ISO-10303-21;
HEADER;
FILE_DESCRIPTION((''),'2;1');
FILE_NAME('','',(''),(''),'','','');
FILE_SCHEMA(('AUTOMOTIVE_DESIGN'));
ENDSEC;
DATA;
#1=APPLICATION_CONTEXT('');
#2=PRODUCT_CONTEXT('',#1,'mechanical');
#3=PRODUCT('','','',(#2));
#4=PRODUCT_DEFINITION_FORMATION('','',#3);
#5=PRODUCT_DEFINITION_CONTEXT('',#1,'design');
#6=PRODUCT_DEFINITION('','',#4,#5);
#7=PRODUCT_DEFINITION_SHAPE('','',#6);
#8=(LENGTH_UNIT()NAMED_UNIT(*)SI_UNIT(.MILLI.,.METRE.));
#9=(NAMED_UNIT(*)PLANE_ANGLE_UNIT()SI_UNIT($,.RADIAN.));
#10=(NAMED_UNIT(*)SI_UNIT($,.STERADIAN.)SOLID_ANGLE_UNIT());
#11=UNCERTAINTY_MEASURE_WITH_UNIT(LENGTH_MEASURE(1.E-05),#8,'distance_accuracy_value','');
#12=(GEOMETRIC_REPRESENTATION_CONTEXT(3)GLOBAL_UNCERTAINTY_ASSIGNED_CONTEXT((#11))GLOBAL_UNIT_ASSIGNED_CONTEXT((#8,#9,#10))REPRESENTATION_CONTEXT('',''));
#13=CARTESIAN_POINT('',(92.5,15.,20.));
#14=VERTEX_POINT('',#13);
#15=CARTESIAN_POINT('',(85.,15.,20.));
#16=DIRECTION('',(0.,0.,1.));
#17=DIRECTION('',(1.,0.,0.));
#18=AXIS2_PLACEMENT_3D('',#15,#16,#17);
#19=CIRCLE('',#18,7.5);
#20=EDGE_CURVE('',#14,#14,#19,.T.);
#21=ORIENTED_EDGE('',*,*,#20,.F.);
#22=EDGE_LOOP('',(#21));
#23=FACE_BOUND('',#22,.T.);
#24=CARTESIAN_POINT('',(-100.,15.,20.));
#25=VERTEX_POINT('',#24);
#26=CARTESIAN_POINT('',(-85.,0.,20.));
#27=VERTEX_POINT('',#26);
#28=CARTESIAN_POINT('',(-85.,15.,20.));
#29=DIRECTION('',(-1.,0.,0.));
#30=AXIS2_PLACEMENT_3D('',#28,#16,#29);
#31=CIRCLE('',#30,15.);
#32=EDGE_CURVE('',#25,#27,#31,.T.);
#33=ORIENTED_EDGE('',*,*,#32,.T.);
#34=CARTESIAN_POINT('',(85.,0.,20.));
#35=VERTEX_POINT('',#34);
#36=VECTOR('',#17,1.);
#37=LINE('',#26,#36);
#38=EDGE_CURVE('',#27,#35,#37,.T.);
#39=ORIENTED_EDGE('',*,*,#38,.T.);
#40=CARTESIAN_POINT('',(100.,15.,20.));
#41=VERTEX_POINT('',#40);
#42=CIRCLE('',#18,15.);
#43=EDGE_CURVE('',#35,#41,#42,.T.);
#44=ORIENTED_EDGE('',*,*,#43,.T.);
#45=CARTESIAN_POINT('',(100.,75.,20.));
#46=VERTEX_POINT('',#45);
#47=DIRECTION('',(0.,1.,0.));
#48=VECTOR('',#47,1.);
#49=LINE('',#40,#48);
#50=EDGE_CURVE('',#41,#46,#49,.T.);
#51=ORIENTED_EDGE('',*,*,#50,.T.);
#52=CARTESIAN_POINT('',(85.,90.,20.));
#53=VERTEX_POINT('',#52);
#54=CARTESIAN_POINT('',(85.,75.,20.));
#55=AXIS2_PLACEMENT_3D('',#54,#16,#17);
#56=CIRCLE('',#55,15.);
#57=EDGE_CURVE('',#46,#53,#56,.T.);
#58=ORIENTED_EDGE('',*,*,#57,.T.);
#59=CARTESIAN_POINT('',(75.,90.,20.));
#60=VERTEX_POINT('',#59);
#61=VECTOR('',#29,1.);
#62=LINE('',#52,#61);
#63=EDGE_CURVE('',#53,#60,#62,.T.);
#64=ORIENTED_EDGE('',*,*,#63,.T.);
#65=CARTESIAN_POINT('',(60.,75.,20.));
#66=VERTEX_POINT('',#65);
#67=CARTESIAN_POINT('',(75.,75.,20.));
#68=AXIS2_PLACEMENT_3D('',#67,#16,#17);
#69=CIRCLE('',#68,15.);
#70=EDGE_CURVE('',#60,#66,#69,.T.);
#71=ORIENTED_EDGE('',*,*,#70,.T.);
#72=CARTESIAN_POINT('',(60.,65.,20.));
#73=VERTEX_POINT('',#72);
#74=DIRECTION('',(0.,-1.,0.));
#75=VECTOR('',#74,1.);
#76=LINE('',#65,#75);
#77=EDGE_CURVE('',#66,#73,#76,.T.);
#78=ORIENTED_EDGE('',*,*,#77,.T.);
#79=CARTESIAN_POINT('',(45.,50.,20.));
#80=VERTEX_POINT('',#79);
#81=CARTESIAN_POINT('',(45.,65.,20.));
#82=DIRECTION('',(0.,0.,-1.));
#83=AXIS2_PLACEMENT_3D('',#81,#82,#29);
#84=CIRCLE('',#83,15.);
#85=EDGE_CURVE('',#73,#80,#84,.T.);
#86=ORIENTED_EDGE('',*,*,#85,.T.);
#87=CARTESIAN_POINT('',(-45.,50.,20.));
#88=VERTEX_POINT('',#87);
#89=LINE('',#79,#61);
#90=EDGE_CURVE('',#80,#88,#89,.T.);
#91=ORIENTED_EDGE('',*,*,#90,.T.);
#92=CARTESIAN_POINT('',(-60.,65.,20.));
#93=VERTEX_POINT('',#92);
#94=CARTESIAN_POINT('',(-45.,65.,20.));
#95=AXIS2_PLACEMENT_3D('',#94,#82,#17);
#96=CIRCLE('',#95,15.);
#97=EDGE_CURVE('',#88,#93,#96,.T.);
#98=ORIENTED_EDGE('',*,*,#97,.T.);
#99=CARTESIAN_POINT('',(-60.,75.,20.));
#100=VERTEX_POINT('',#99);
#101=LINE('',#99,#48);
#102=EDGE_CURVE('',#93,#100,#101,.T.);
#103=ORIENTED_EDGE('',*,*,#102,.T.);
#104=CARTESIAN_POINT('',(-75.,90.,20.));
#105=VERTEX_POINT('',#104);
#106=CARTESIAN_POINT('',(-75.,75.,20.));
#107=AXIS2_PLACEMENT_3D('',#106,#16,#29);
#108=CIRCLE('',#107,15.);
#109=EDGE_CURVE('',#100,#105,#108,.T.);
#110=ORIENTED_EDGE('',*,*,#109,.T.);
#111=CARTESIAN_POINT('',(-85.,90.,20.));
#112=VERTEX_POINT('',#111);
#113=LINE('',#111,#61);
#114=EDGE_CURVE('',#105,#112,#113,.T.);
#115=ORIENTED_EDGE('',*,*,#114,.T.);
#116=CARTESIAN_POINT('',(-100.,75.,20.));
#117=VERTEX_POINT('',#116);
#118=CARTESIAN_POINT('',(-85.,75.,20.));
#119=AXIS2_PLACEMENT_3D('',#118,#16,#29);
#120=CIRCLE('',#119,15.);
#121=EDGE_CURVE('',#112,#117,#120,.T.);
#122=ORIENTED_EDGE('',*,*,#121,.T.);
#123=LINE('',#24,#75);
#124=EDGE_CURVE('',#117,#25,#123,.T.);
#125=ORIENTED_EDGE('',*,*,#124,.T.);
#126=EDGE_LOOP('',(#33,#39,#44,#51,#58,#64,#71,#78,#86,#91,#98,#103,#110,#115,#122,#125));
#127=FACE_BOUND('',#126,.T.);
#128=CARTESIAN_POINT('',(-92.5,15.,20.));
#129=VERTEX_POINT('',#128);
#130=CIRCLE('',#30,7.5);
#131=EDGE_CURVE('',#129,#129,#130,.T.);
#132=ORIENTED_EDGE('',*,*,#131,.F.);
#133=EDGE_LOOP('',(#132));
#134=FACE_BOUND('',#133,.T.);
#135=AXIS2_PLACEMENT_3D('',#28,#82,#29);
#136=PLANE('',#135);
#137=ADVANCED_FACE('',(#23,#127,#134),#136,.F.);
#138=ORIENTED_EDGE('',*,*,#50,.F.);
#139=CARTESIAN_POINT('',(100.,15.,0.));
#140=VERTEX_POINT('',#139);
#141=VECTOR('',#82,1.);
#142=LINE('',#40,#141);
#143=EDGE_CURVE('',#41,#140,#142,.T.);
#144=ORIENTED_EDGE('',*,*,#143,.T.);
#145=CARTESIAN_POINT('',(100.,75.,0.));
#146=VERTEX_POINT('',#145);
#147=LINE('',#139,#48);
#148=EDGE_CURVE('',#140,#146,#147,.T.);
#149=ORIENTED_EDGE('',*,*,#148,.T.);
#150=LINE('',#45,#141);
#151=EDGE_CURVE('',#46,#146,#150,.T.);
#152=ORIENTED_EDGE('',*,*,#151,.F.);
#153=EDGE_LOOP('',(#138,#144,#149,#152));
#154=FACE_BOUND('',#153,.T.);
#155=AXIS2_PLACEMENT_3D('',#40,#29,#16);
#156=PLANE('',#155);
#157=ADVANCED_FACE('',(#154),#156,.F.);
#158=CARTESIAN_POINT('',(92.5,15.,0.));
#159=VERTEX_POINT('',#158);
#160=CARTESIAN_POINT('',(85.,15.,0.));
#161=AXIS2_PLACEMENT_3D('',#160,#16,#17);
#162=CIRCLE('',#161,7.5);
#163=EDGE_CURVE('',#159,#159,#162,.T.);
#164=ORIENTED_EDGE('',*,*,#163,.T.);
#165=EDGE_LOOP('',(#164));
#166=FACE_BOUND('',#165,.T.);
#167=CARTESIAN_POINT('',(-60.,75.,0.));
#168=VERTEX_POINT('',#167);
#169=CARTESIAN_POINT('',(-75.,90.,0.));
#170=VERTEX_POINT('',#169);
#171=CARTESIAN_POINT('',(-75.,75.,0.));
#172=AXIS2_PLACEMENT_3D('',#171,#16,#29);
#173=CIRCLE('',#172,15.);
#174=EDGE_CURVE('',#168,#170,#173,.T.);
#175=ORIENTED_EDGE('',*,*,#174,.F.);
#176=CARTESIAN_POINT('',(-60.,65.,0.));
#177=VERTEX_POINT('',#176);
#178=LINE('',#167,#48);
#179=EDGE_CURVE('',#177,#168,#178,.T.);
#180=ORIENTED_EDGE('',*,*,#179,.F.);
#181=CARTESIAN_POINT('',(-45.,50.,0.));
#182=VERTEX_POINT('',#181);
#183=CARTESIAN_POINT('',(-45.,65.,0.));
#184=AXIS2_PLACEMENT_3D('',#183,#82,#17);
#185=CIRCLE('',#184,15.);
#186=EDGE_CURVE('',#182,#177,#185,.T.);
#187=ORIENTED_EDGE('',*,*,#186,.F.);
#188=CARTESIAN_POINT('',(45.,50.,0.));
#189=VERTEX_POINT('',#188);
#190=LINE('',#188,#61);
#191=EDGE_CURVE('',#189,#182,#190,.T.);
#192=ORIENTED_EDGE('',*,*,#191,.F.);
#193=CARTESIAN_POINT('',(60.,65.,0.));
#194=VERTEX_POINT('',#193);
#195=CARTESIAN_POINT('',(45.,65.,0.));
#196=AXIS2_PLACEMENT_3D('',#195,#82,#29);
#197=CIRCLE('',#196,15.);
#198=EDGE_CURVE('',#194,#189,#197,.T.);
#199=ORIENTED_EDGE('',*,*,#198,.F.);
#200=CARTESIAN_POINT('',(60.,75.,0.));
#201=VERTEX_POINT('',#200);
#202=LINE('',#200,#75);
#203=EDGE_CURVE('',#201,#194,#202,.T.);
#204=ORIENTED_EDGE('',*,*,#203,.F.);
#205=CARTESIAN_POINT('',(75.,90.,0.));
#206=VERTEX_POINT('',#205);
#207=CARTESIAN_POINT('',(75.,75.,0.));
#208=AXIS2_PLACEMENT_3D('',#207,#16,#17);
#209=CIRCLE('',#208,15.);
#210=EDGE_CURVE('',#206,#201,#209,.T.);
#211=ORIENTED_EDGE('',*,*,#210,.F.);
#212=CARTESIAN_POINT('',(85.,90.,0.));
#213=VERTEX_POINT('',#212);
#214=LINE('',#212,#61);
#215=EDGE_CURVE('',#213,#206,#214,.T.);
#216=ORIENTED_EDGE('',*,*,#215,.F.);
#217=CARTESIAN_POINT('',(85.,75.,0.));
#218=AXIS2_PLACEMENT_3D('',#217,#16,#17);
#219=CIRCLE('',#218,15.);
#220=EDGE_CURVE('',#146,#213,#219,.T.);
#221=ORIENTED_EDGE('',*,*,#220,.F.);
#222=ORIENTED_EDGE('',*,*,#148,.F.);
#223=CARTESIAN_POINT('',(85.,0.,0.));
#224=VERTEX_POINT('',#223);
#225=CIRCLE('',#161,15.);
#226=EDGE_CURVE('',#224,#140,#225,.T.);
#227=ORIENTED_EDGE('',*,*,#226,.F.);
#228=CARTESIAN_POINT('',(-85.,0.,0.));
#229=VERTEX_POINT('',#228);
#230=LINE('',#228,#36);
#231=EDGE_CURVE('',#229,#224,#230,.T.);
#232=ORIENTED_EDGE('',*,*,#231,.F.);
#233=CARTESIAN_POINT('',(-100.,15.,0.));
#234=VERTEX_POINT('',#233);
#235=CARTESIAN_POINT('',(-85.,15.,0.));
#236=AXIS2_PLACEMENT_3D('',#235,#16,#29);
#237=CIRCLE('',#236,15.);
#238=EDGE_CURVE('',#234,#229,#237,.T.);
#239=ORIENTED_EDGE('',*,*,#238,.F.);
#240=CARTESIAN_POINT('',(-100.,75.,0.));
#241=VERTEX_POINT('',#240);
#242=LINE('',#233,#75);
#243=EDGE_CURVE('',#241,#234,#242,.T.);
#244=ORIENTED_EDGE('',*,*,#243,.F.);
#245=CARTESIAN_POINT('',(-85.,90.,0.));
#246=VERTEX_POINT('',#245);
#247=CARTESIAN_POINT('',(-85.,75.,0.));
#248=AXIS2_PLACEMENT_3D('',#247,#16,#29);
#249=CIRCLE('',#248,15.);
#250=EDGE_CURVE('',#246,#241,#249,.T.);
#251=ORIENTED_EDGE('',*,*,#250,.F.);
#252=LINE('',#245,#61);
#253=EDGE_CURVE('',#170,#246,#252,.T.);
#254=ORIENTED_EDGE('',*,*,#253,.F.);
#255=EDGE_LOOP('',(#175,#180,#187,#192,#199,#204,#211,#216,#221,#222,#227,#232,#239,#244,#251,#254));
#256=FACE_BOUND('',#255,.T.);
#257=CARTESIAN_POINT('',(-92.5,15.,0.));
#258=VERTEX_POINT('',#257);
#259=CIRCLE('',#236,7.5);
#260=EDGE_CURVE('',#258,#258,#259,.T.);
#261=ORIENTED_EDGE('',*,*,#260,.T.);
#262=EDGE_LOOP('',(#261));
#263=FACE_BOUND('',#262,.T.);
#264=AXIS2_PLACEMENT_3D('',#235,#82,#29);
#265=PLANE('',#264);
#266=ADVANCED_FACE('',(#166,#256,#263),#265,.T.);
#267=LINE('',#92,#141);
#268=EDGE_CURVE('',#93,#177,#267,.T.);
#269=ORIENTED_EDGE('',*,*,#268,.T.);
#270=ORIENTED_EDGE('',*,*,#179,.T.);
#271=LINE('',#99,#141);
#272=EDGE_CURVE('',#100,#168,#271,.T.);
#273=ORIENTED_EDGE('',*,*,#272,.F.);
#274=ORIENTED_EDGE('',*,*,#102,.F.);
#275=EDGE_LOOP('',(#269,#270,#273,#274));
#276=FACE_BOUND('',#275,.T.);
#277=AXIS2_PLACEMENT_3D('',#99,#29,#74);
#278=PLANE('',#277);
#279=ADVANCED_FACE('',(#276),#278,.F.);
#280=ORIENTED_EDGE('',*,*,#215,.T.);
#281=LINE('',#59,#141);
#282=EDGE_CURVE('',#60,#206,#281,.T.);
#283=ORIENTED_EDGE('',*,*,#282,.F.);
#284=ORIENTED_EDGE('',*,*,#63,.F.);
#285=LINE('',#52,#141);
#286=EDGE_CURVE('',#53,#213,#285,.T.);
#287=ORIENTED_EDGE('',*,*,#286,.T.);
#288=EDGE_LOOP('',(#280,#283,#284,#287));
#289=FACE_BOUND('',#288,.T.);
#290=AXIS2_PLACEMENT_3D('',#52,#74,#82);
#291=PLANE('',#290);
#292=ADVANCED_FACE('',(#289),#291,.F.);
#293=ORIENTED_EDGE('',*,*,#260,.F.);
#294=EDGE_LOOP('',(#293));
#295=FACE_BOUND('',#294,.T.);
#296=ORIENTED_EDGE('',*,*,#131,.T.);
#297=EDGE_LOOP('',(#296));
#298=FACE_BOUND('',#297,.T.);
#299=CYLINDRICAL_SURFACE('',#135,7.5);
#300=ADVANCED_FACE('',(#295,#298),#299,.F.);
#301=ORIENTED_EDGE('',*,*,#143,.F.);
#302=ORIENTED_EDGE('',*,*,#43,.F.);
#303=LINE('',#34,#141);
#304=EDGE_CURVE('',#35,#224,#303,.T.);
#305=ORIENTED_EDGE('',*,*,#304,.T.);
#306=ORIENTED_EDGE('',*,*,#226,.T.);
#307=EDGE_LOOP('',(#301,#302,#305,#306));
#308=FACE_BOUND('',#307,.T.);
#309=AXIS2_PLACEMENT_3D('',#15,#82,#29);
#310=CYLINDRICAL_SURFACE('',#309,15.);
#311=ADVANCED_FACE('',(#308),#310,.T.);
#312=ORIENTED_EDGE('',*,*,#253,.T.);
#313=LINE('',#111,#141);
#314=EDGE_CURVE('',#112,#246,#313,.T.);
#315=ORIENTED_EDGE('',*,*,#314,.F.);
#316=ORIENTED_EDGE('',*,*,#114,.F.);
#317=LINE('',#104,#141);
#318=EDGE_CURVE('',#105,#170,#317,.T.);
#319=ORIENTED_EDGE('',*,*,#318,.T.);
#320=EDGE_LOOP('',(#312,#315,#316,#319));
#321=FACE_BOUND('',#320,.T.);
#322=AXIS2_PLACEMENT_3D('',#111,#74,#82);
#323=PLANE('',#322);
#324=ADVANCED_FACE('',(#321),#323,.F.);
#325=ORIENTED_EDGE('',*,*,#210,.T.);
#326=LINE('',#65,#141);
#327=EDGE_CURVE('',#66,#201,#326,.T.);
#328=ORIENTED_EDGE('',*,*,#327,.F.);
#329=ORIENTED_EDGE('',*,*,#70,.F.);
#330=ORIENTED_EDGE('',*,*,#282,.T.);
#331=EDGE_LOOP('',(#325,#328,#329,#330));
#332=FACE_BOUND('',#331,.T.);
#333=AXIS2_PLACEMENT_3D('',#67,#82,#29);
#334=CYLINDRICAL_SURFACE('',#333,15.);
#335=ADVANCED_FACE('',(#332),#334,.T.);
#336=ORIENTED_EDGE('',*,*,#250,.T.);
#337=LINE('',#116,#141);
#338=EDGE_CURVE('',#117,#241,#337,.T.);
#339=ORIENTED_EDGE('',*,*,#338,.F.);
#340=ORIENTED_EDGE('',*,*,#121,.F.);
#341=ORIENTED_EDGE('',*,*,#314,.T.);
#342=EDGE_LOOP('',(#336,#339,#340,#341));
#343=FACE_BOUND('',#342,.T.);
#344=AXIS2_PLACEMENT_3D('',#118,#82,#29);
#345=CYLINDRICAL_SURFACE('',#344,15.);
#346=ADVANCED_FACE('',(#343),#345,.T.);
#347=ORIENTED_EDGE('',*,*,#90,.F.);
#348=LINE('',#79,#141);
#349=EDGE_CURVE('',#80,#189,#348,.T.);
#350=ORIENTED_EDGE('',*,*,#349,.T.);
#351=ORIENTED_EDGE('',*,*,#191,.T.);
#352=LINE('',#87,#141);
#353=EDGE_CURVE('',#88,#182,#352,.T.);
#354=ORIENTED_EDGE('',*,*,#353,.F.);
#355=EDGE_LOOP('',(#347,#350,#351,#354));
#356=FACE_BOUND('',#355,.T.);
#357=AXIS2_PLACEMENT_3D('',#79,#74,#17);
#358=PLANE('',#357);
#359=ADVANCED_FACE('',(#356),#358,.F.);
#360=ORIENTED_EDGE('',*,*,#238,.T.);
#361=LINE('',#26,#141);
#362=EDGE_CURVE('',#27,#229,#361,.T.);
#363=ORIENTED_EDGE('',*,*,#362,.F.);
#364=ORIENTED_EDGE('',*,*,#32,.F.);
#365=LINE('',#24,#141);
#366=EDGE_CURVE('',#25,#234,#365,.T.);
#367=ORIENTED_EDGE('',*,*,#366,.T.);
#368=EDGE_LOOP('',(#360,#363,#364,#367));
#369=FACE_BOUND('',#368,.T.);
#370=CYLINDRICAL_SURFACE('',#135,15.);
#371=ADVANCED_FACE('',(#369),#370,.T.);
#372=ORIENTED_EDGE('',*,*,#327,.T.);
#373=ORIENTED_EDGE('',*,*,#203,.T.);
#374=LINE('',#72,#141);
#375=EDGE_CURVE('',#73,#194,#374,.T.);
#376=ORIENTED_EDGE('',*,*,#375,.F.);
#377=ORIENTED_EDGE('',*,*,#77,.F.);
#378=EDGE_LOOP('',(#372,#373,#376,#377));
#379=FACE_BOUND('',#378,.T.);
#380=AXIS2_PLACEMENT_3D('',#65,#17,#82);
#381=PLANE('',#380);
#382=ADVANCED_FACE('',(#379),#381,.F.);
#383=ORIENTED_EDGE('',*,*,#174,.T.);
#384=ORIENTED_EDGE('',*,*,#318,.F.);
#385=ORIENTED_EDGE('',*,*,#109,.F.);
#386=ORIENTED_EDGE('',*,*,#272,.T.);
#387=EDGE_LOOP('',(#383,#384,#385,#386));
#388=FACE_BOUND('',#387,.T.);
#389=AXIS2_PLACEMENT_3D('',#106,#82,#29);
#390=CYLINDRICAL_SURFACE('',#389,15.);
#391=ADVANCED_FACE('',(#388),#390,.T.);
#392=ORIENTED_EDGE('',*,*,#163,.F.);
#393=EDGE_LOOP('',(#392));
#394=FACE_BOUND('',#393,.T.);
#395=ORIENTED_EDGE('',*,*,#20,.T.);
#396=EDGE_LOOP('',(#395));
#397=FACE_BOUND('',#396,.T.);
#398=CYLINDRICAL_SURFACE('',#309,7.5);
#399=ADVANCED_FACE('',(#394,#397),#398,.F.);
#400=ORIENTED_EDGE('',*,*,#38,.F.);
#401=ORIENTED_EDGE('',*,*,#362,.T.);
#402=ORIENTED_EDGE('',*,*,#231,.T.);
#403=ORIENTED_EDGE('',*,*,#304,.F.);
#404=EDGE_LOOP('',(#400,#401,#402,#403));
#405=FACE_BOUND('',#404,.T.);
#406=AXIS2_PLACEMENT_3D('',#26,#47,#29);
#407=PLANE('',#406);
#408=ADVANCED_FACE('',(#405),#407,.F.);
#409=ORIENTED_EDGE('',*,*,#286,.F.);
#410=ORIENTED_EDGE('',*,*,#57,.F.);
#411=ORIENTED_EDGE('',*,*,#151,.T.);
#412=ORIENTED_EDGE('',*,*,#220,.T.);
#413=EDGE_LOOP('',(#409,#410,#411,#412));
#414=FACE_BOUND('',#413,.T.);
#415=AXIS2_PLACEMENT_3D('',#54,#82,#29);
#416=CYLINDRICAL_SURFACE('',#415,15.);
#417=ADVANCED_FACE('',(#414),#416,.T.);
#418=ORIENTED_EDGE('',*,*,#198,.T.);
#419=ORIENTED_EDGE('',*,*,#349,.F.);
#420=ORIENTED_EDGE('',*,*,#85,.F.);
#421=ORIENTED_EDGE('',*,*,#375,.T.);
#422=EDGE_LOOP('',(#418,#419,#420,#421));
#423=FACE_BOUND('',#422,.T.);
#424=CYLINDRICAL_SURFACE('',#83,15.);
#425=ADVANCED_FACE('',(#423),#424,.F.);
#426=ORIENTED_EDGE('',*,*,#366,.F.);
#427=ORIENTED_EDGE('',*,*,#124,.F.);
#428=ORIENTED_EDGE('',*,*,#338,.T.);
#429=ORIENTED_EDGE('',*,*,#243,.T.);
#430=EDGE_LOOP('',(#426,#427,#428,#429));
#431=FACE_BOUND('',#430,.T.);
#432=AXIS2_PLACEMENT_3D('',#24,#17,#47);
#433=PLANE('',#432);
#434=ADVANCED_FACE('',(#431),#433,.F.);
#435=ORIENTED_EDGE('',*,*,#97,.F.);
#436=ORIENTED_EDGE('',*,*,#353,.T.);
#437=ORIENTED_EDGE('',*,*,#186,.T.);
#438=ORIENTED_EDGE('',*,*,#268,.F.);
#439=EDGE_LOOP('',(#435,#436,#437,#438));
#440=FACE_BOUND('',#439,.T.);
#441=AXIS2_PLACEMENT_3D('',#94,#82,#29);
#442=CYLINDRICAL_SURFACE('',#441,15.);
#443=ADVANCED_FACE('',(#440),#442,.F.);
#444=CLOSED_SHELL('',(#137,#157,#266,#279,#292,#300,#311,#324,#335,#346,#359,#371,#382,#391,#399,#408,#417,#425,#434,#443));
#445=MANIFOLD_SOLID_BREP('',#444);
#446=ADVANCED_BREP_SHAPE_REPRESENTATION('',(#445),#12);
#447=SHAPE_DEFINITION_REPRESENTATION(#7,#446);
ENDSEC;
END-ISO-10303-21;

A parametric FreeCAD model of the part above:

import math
import FreeCAD as App
import Part
import Sketcher
from FreeCAD import Vector
Q = App.Units.Quantity

doc = App.newDocument("Part")
body = doc.addObject("PartDesign::Body", "Body")

sketch1 = body.newObject("Sketcher::SketchObject", "Sketch")
sketch1.AttachmentSupport = (doc.getObject("XY_Plane"), [""])
sketch1.MapMode = "FlatFace"
sketch1.addGeometry(Part.LineSegment(Vector(-85, 0, 0), Vector(85, 0, 0)), False)
sketch1.addGeometry(Part.ArcOfCircle(Part.Circle(Vector(85, 15, 0), Vector(0, 0, 1), 15), math.radians(-90), math.radians(0)), False)
sketch1.addGeometry(Part.LineSegment(Vector(100, 15, 0), Vector(100, 75, 0)), False)
sketch1.addGeometry(Part.ArcOfCircle(Part.Circle(Vector(85, 75, 0), Vector(0, 0, 1), 15), math.radians(0), math.radians(90)), False)
sketch1.addGeometry(Part.LineSegment(Vector(85, 90, 0), Vector(75, 90, 0)), False)
sketch1.addGeometry(Part.ArcOfCircle(Part.Circle(Vector(75, 75, 0), Vector(0, 0, 1), 15), math.radians(90), math.radians(180)), False)
sketch1.addGeometry(Part.LineSegment(Vector(60, 75, 0), Vector(60, 65, 0)), False)
sketch1.addGeometry(Part.ArcOfCircle(Part.Circle(Vector(45, 65, 0), Vector(0, 0, 1), 15), math.radians(-90), math.radians(0)), False)
sketch1.addGeometry(Part.LineSegment(Vector(45, 50, 0), Vector(-45, 50, 0)), False)
sketch1.addGeometry(Part.ArcOfCircle(Part.Circle(Vector(-45, 65, 0), Vector(0, 0, 1), 15), math.radians(180), math.radians(270)), False)
sketch1.addGeometry(Part.LineSegment(Vector(-60, 65, 0), Vector(-60, 75, 0)), False)
sketch1.addGeometry(Part.ArcOfCircle(Part.Circle(Vector(-75, 75, 0), Vector(0, 0, 1), 15), math.radians(0), math.radians(90)), False)
sketch1.addGeometry(Part.LineSegment(Vector(-75, 90, 0), Vector(-85, 90, 0)), False)
sketch1.addGeometry(Part.ArcOfCircle(Part.Circle(Vector(-85, 75, 0), Vector(0, 0, 1), 15), math.radians(90), math.radians(180)), False)
sketch1.addGeometry(Part.LineSegment(Vector(-100, 75, 0), Vector(-100, 15, 0)), False)
sketch1.addGeometry(Part.ArcOfCircle(Part.Circle(Vector(-85, 15, 0), Vector(0, 0, 1), 15), math.radians(180), math.radians(270)), False)
sketch1.addGeometry(Part.Circle(Vector(-85, 15, 0), Vector(0, 0, 1), 7.5), False)
sketch1.addGeometry(Part.Circle(Vector(85, 15, 0), Vector(0, 0, 1), 7.5), False)
sketch1.addConstraint(Sketcher.Constraint("Tangent", 0, 2, 1, 1))
sketch1.addConstraint(Sketcher.Constraint("Tangent", 1, 2, 2, 1))
sketch1.addConstraint(Sketcher.Constraint("Tangent", 2, 2, 3, 1))
sketch1.addConstraint(Sketcher.Constraint("Tangent", 3, 2, 4, 1))
sketch1.addConstraint(Sketcher.Constraint("Tangent", 4, 2, 5, 1))
sketch1.addConstraint(Sketcher.Constraint("Tangent", 5, 2, 6, 1))
sketch1.addConstraint(Sketcher.Constraint("Tangent", 6, 2, 7, 2))
sketch1.addConstraint(Sketcher.Constraint("Tangent", 7, 1, 8, 1))
sketch1.addConstraint(Sketcher.Constraint("Tangent", 8, 2, 9, 2))
sketch1.addConstraint(Sketcher.Constraint("Tangent", 9, 1, 10, 1))
sketch1.addConstraint(Sketcher.Constraint("Tangent", 10, 2, 11, 1))
sketch1.addConstraint(Sketcher.Constraint("Tangent", 11, 2, 12, 1))
sketch1.addConstraint(Sketcher.Constraint("Tangent", 12, 2, 13, 1))
sketch1.addConstraint(Sketcher.Constraint("Tangent", 13, 2, 14, 1))
sketch1.addConstraint(Sketcher.Constraint("Tangent", 14, 2, 15, 1))
sketch1.addConstraint(Sketcher.Constraint("Tangent", 15, 2, 0, 1))
sketch1.addConstraint(Sketcher.Constraint("Horizontal", 0))
sketch1.addConstraint(Sketcher.Constraint("Vertical", 2))
sketch1.addConstraint(Sketcher.Constraint("Horizontal", 4))
sketch1.addConstraint(Sketcher.Constraint("Vertical", 6))
sketch1.addConstraint(Sketcher.Constraint("Horizontal", 8))
sketch1.addConstraint(Sketcher.Constraint("Vertical", 10))
sketch1.addConstraint(Sketcher.Constraint("Horizontal", 12))
sketch1.addConstraint(Sketcher.Constraint("Vertical", 14))
sketch1.addConstraint(Sketcher.Constraint("Coincident", 16, 3, 15, 3))
sketch1.addConstraint(Sketcher.Constraint("Coincident", 17, 3, 1, 3))
sketch1.addConstraint(Sketcher.Constraint("Equal", 1, 3))
sketch1.addConstraint(Sketcher.Constraint("Equal", 3, 5))
sketch1.addConstraint(Sketcher.Constraint("Equal", 5, 7))
sketch1.addConstraint(Sketcher.Constraint("Equal", 7, 9))
sketch1.addConstraint(Sketcher.Constraint("Equal", 9, 11))
sketch1.addConstraint(Sketcher.Constraint("Equal", 11, 13))
sketch1.addConstraint(Sketcher.Constraint("Equal", 13, 15))
sketch1.addConstraint(Sketcher.Constraint("Equal", 16, 17))
sketch1.addConstraint(Sketcher.Constraint("Symmetric", 0, 2, 15, 2, -1, 1))
sketch1.addConstraint(Sketcher.Constraint("Symmetric", 5, 3, 11, 3, -2))
sketch1.addConstraint(Sketcher.Constraint("Equal", 12, 6))
sketch1.addConstraint(Sketcher.Constraint("Diameter", 16, Q("15 mm")))
sketch1.addConstraint(Sketcher.Constraint("Radius", 1, Q("15 mm")))
sketch1.addConstraint(Sketcher.Constraint("DistanceX", 0, 1, 0, 2, Q("170 mm")))
sketch1.addConstraint(Sketcher.Constraint("DistanceX", 4, 2, 4, 1, Q("10 mm")))
sketch1.addConstraint(Sketcher.Constraint("DistanceY", 2, 1, 2, 2, Q("60 mm")))
pad1 = body.newObject("PartDesign::Pad", "Pad")
pad1.Profile = sketch1
pad1.Length = 20

doc.recompute()
